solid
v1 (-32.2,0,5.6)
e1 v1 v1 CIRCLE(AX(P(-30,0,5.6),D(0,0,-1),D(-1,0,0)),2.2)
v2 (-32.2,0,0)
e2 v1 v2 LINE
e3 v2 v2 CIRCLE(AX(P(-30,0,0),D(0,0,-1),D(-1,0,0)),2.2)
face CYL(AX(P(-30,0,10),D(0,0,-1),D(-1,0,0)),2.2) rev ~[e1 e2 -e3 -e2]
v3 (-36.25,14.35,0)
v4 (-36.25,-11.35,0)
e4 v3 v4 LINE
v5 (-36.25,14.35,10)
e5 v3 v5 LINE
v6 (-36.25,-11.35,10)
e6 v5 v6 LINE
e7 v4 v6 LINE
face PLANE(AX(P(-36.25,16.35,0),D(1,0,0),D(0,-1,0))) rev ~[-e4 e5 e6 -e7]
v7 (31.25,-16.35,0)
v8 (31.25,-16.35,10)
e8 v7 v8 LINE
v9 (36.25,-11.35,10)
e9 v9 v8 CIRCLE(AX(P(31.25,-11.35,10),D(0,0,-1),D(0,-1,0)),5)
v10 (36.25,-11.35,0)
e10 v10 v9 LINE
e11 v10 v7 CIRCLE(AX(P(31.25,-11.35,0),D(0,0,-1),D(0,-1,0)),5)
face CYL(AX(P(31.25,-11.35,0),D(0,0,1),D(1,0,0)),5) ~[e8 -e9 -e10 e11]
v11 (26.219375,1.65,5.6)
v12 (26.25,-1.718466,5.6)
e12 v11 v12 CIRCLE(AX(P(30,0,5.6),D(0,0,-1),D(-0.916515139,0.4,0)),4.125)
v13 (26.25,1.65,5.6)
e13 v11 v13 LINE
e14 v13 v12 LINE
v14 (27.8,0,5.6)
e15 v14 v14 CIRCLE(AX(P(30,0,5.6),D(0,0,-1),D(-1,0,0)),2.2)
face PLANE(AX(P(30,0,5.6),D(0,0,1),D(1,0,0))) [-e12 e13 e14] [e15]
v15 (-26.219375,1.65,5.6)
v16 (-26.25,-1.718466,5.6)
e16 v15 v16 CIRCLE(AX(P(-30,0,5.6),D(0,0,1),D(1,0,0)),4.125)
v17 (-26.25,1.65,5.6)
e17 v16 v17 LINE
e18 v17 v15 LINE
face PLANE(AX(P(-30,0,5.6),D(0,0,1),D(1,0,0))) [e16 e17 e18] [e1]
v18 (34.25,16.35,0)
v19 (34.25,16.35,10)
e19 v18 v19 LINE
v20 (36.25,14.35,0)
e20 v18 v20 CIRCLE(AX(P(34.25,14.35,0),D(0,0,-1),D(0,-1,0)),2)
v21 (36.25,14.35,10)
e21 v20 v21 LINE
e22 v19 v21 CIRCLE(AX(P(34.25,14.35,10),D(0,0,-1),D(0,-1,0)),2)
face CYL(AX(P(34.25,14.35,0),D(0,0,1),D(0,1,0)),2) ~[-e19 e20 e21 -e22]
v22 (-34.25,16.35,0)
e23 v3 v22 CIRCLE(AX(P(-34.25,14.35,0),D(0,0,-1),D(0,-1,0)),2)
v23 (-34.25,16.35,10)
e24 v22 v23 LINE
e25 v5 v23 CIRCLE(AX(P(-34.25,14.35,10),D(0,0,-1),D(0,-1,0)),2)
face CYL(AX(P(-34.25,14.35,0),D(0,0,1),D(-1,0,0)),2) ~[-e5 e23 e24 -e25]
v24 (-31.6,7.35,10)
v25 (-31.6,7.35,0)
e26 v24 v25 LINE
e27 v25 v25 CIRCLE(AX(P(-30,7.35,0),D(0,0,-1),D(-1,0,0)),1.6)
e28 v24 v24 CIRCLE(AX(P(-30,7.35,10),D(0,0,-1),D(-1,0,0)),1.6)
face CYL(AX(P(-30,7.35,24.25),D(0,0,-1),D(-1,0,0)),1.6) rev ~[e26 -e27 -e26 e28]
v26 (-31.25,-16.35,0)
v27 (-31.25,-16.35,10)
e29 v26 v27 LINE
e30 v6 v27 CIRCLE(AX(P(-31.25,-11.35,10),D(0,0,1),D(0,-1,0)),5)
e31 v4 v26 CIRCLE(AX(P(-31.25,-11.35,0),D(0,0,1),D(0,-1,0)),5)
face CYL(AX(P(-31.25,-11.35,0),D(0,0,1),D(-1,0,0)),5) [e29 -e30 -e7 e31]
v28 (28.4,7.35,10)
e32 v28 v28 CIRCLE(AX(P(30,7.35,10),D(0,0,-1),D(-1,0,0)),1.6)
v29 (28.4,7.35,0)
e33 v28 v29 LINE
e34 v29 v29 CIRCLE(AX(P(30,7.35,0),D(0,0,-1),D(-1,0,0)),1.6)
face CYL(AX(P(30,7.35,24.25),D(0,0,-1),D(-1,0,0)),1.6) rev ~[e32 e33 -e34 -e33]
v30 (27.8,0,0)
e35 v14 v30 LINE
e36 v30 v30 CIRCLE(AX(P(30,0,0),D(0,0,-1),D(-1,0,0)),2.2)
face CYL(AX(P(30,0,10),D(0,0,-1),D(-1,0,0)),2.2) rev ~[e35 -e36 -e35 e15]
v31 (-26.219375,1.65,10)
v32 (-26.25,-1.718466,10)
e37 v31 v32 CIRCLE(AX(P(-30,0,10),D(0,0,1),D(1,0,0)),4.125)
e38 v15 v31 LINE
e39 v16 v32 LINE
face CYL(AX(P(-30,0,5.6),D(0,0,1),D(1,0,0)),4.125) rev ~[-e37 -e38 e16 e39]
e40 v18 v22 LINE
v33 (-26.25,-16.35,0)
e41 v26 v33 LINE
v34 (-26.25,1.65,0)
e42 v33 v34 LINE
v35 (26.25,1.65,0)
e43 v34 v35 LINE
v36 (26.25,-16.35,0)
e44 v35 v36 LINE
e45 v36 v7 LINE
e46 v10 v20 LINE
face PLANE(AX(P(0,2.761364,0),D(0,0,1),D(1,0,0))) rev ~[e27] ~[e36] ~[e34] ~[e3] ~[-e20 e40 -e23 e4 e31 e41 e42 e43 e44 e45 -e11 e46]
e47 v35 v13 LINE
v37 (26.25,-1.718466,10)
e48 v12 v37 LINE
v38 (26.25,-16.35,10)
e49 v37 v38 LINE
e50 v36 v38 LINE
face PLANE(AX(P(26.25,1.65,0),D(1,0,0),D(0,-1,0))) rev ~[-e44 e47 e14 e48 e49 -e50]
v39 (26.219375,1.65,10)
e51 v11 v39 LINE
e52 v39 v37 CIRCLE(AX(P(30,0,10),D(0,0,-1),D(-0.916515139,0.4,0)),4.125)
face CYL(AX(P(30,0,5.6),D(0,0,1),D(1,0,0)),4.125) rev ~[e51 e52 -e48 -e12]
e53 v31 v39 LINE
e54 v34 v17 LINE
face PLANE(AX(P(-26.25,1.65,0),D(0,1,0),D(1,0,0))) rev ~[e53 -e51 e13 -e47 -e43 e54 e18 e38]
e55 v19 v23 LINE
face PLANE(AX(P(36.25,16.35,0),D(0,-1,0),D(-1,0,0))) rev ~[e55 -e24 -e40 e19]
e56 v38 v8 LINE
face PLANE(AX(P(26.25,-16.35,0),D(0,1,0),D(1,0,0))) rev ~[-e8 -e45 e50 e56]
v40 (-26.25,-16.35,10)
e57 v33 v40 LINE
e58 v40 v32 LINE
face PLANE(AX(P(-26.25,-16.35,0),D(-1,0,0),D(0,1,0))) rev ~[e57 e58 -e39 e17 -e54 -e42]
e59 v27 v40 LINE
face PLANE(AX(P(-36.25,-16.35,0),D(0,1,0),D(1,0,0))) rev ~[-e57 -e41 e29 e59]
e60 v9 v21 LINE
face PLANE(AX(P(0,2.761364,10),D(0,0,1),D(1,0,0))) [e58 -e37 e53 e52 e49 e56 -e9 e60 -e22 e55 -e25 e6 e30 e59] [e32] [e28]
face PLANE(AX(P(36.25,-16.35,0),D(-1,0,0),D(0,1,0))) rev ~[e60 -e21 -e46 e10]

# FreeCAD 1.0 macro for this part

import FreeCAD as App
import Part
import Sketcher
Q = App.Units.Quantity


def edges_at(feature, points):
    """Names of the edges that pass closest to the given points."""
    edges = feature.Shape.Edges
    near = lambda p: min(range(len(edges)), key=lambda i: edges[i].distToShape(Part.Vertex(*p))[0])
    return sorted({f"Edge{near(p) + 1}" for p in points})

doc = App.newDocument("Part")
body = doc.addObject("PartDesign::Body", "Body")

# Sketch on XY plane
sketch1 = body.newObject("Sketcher::SketchObject", "Sketch")
sketch1.AttachmentSupport = (doc.getObject("XY_Plane"), [""])
sketch1.MapMode = "FlatFace"
sketch1.addGeometry([
    Part.LineSegment(App.Vector(-36, 16, 0), App.Vector(-36, -16, 0)),  # 0
    Part.LineSegment(App.Vector(-36, -16, 0), App.Vector(-26, -16, 0)),  # 1
    Part.LineSegment(App.Vector(-26, -16, 0), App.Vector(-26, 2, 0)),  # 2
    Part.LineSegment(App.Vector(-26, 2, 0), App.Vector(26, 2, 0)),  # 3
    Part.LineSegment(App.Vector(26, 2, 0), App.Vector(26, -16, 0)),  # 4
    Part.LineSegment(App.Vector(26, -16, 0), App.Vector(36, -16, 0)),  # 5
    Part.LineSegment(App.Vector(36, -16, 0), App.Vector(36, 16, 0)),  # 6
    Part.LineSegment(App.Vector(36, 16, 0), App.Vector(-36, 16, 0)),  # 7
], False)
sketch1.addConstraint([
    Sketcher.Constraint("Coincident", 0, 2, 1, 1),
    Sketcher.Constraint("Coincident", 1, 2, 2, 1),
    Sketcher.Constraint("Coincident", 2, 2, 3, 1),
    Sketcher.Constraint("Coincident", 3, 2, 4, 1),
    Sketcher.Constraint("Coincident", 4, 2, 5, 1),
    Sketcher.Constraint("Coincident", 5, 2, 6, 1),
    Sketcher.Constraint("Coincident", 6, 2, 7, 1),
    Sketcher.Constraint("Coincident", 7, 2, 0, 1),
    Sketcher.Constraint("Vertical", 0),
    Sketcher.Constraint("Horizontal", 1),
    Sketcher.Constraint("Vertical", 2),
    Sketcher.Constraint("Horizontal", 3),
    Sketcher.Constraint("Vertical", 4),
    Sketcher.Constraint("Horizontal", 5),
    Sketcher.Constraint("Vertical", 6),
    Sketcher.Constraint("Horizontal", 7),
    Sketcher.Constraint("Symmetric", 0, 2, 6, 2, -1, 1),
    Sketcher.Constraint("Symmetric", 1, 2, 4, 2, -2),
    Sketcher.Constraint("DistanceX", 1, 1, 1, 2, Q("10 mm")),
    Sketcher.Constraint("DistanceY", 2, 1, 2, 2, Q("18 mm")),
    Sketcher.Constraint("DistanceX", 3, 1, 3, 2, Q("52.5 mm")),
    Sketcher.Constraint("DistanceY", 0, 2, 0, 1, Q("32.7 mm")),
])
pad1 = body.newObject("PartDesign::Pad", "Pad")
pad1.Profile = sketch1
pad1.Length = 10

# Sketch on XY plane
sketch2 = body.newObject("Sketcher::SketchObject", "Sketch001")
sketch2.AttachmentSupport = (doc.getObject("XY_Plane"), [""])
sketch2.MapMode = "FlatFace"
sketch2.AttachmentOffset = App.Placement(App.Vector(0, 0, 10), App.Rotation())
sketch2.addGeometry([
    Part.Circle(App.Vector(-30, 7.3, 0), App.Vector(0, 0, 1), 1.6),
    Part.Circle(App.Vector(30, 7.3, 0), App.Vector(0, 0, 1), 1.6),
], False)
sketch2.addConstraint([
    Sketcher.Constraint("Equal", 0, 1),
    Sketcher.Constraint("Symmetric", 0, 3, 1, 3, -2),
    Sketcher.Constraint("Diameter", 0, Q("3.2 mm")),
    Sketcher.Constraint("DistanceX", 0, 3, -1, 1, Q("30 mm")),
    Sketcher.Constraint("DistanceY", -1, 1, 0, 3, Q("7.35 mm")),
])
doc.recompute()
hole = body.newObject("PartDesign::Hole", "Hole")
hole.Profile = sketch2
hole.ThreadType = "None"
hole.Diameter = 3.2
hole.DepthType = "Dimension"
hole.Depth = 14.25
hole.DrillPoint = "Angled"
hole.DrillPointAngle = 118
doc.recompute()

fillet = body.newObject("PartDesign::Fillet", "Fillet")
fillet.Base = (hole, edges_at(hole, [(-36.25, -16.35, 5), (36.25, -16.35, 5)]))
fillet.Radius = 5
doc.recompute()

fillet2 = body.newObject("PartDesign::Fillet", "Fillet001")
fillet2.Base = (fillet, edges_at(fillet, [(36.25, 16.35, 5), (-36.25, 16.35, 5)]))
fillet2.Radius = 2

# Sketch on XY plane
sketch3 = body.newObject("Sketcher::SketchObject", "Sketch002")
sketch3.AttachmentSupport = (doc.getObject("XY_Plane"), [""])
sketch3.MapMode = "FlatFace"
sketch3.AttachmentOffset = App.Placement(App.Vector(0, 0, 10), App.Rotation())
sketch3.addGeometry([
    Part.Circle(App.Vector(-30, 0, 0), App.Vector(0, 0, 1), 2.2),
    Part.Circle(App.Vector(30, 0, 0), App.Vector(0, 0, 1), 2.2),
], False)
sketch3.addConstraint([
    Sketcher.Constraint("Equal", 0, 1),
    Sketcher.Constraint("Symmetric", 0, 3, 1, 3, -1, 1),
    Sketcher.Constraint("PointOnObject", 0, 3, -1),
    Sketcher.Constraint("Diameter", 0, Q("4.4 mm")),
    Sketcher.Constraint("DistanceX", 0, 3, -1, 1, Q("30 mm")),
])
doc.recompute()
hole2 = body.newObject("PartDesign::Hole", "Hole001")
hole2.Profile = sketch3
hole2.ThreadType = "None"
hole2.Diameter = 4.4
hole2.DepthType = "ThroughAll"
hole2.HoleCutType = "Counterbore"
hole2.HoleCutDiameter = 8.25
hole2.HoleCutDepth = 4.4

doc.recompute()
